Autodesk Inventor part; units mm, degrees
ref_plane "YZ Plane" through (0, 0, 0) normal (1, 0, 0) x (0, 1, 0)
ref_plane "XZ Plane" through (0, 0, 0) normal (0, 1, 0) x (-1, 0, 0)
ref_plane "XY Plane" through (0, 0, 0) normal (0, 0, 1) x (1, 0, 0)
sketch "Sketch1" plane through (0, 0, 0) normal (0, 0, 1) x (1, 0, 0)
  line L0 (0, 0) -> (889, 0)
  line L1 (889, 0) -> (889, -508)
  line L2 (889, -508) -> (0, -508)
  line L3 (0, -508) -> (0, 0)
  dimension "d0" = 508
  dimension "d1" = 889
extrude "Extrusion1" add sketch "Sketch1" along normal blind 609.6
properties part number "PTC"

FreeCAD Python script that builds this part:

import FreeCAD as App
import Part
import Sketcher

V = App.Vector
Q = App.Units.Quantity


def add_polygon(sketch, points):
    """Adds a closed chain of lines whose ends are joined by coincident constraints."""
    first, n = sketch.GeometryCount, len(points)
    for a, b in zip(points, points[1:] + points[:1]):
        sketch.addGeometry(Part.LineSegment(App.Vector(*a, 0), App.Vector(*b, 0)), False)
    for i in range(n):
        sketch.addConstraint(Sketcher.Constraint("Coincident", first + i, 2, first + (i + 1) % n, 1))

doc = App.newDocument("Part")
body = doc.addObject("PartDesign::Body", "Body")

# Sketch on XY plane
sketch1 = body.newObject("Sketcher::SketchObject", "Sketch")
sketch1.AttachmentSupport = (doc.getObject("XY_Plane"), [""])
sketch1.MapMode = "FlatFace"
add_polygon(sketch1, [(889, 0), (0, 0), (0, -508), (889, -508)])  # lines 0-3
sketch1.addConstraint([
    Sketcher.Constraint("Horizontal", 0),
    Sketcher.Constraint("Vertical", 1),
    Sketcher.Constraint("Horizontal", 2),
    Sketcher.Constraint("Vertical", 3),
    Sketcher.Constraint("Coincident", 0, 2, -1, 1),
    Sketcher.Constraint("DistanceX", 0, 2, 0, 1, Q("35 in")),
    Sketcher.Constraint("DistanceY", 1, 2, 1, 1, Q("20 in")),
])
pad1 = body.newObject("PartDesign::Pad", "Pad")
pad1.Profile = sketch1
pad1.Length = Q("24 in")

doc.recompute()
